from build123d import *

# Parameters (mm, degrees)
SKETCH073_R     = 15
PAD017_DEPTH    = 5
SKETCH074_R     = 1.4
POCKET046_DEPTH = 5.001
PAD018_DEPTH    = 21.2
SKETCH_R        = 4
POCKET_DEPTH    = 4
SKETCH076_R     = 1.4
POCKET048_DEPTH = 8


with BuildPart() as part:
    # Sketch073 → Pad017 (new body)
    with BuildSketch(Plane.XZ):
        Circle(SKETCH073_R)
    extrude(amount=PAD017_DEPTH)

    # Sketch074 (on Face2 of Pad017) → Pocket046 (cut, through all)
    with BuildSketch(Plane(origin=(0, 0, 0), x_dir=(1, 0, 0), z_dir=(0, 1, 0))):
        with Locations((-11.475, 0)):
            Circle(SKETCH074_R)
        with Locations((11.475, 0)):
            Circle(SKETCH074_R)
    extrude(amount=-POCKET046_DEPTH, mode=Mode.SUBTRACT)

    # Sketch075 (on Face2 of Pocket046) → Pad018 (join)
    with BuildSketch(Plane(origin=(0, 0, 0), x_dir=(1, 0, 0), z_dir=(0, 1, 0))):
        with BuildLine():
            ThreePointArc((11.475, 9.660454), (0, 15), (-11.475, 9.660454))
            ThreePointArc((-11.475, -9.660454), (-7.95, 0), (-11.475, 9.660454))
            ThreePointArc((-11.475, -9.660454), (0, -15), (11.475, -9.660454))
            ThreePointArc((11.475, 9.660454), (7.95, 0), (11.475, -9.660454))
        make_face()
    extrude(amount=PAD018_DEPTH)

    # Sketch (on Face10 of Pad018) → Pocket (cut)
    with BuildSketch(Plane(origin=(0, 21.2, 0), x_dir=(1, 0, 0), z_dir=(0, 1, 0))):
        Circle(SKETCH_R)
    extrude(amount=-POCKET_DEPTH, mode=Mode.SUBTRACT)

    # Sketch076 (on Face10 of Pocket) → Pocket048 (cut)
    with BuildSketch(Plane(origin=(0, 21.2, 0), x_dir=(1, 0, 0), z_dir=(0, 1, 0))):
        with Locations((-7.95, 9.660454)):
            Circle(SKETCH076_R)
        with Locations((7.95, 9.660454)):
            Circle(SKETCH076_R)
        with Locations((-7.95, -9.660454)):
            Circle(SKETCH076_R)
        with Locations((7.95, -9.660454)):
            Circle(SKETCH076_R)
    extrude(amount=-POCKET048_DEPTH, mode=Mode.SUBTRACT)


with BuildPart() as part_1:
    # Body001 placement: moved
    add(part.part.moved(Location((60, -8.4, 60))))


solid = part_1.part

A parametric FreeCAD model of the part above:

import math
import FreeCAD as App
import Part
import Sketcher

V = App.Vector

doc = App.newDocument("Part")
body = doc.addObject("PartDesign::Body", "Body")

sketch1 = doc.addObject("Sketcher::SketchObject", "Sketch")
body.addObject(sketch1)
sketch1.AttachmentSupport = (doc.XZ_Plane, [""])
sketch1.MapMode = "FlatFace"
sketch1.addGeometry(Part.Circle(V(0, 0, 0), V(0, 0, 1), 15), False)
sketch1.addConstraint(Sketcher.Constraint("Coincident", 0, 3, -1, 1))
sketch1.addConstraint(Sketcher.Constraint("Diameter", 0, 30.0))
pad1 = doc.addObject("PartDesign::Pad", "Pad")
body.addObject(pad1)
pad1.Profile = sketch1
pad1.Length = 5

sketch2 = doc.addObject("Sketcher::SketchObject", "Sketch001")
body.addObject(sketch2)
sketch2.AttachmentSupport = (doc.XZ_Plane, [""])
sketch2.MapMode = "FlatFace"
sketch2.addGeometry(Part.Circle(V(-11.475, 0, 0), V(0, 0, 1), 1.4), False)
sketch2.addGeometry(Part.Circle(V(11.475, 0, 0), V(0, 0, 1), 1.4), False)
sketch2.addConstraint(Sketcher.Constraint("Equal", 0, 1))
sketch2.addConstraint(Sketcher.Constraint("Symmetric", 0, 3, 1, 3, -1, 1))
sketch2.addConstraint(Sketcher.Constraint("PointOnObject", 0, 3, -1))
sketch2.addConstraint(Sketcher.Constraint("Diameter", 0, 2.8))
sketch2.addConstraint(Sketcher.Constraint("DistanceX", 0, 3, 1, 3, 22.95))
pocket1 = doc.addObject("PartDesign::Pocket", "Pocket")
body.addObject(pocket1)
pocket1.Profile = sketch2
pocket1.Type = "ThroughAll"
pocket1.Reversed = True

sketch3 = doc.addObject("Sketcher::SketchObject", "Sketch002")
body.addObject(sketch3)
sketch3.AttachmentSupport = (doc.XZ_Plane, [""])
sketch3.MapMode = "FlatFace"
sketch3.addGeometry(Part.ArcOfCircle(Part.Circle(V(0, 0, 0), V(0, 0, 1), 15), math.radians(-139.906994), math.radians(-40.093006)), False)
sketch3.addGeometry(Part.ArcOfCircle(Part.Circle(V(-22.95, 0, 0), V(0, 0, 1), 15), math.radians(-40.093009), math.radians(40.093009)), False)
sketch3.addGeometry(Part.ArcOfCircle(Part.Circle(V(0, 0, 0), V(0, 0, 1), 15), math.radians(40.093006), math.radians(139.906994)), False)
sketch3.addGeometry(Part.ArcOfCircle(Part.Circle(V(22.95, 0, 0), V(0, 0, 1), 15), math.radians(139.906991), math.radians(220.093009)), False)
sketch3.addConstraint(Sketcher.Constraint("Coincident", 0, 1, 1, 1))
sketch3.addConstraint(Sketcher.Constraint("Coincident", 1, 2, 2, 2))
sketch3.addConstraint(Sketcher.Constraint("Coincident", 2, 1, 3, 1))
sketch3.addConstraint(Sketcher.Constraint("Coincident", 3, 2, 0, 2))
sketch3.addConstraint(Sketcher.Constraint("Coincident", 0, 3, -1, 1))
sketch3.addConstraint(Sketcher.Constraint("Coincident", 2, 3, -1, 1))
sketch3.addConstraint(Sketcher.Constraint("Equal", 0, 1))
sketch3.addConstraint(Sketcher.Constraint("Equal", 1, 2))
sketch3.addConstraint(Sketcher.Constraint("Equal", 2, 3))
sketch3.addConstraint(Sketcher.Constraint("Symmetric", 1, 3, 3, 3, -1, 1))
sketch3.addConstraint(Sketcher.Constraint("PointOnObject", 1, 3, -1))
sketch3.addConstraint(Sketcher.Constraint("Radius", 0, 15.0))
sketch3.addConstraint(Sketcher.Constraint("DistanceX", 1, 3, 3, 3, 45.899999))
pad2 = doc.addObject("PartDesign::Pad", "Pad001")
body.addObject(pad2)
pad2.Profile = sketch3
pad2.Length = 21.2
pad2.Reversed = True

sketch4 = doc.addObject("Sketcher::SketchObject", "Sketch003")
body.addObject(sketch4)
sketch4.AttachmentSupport = (doc.XZ_Plane, [""])
sketch4.MapMode = "FlatFace"
sketch4.AttachmentOffset = App.Placement(V(0, 0, -21.2), App.Rotation())
sketch4.addGeometry(Part.Circle(V(0, 0, 0), V(0, 0, 1), 4), False)
sketch4.addConstraint(Sketcher.Constraint("Coincident", 0, 3, -1, 1))
sketch4.addConstraint(Sketcher.Constraint("Diameter", 0, 8.0))
pocket2 = doc.addObject("PartDesign::Pocket", "Pocket001")
body.addObject(pocket2)
pocket2.Profile = sketch4
pocket2.Length = 4
pocket2.Reversed = True

sketch5 = doc.addObject("Sketcher::SketchObject", "Sketch004")
body.addObject(sketch5)
sketch5.AttachmentSupport = (doc.XZ_Plane, [""])
sketch5.MapMode = "FlatFace"
sketch5.AttachmentOffset = App.Placement(V(0, 0, -21.2), App.Rotation())
sketch5.addGeometry(Part.Circle(V(-7.95, -9.660454, 0), V(0, 0, 1), 1.4), False)
sketch5.addGeometry(Part.Circle(V(7.95, -9.660454, 0), V(0, 0, 1), 1.4), False)
sketch5.addGeometry(Part.Circle(V(-7.95, 9.660454, 0), V(0, 0, 1), 1.4), False)
sketch5.addGeometry(Part.Circle(V(7.95, 9.660454, 0), V(0, 0, 1), 1.4), False)
sketch5.addConstraint(Sketcher.Constraint("Equal", 0, 1))
sketch5.addConstraint(Sketcher.Constraint("Equal", 1, 2))
sketch5.addConstraint(Sketcher.Constraint("Equal", 2, 3))
sketch5.addConstraint(Sketcher.Constraint("Symmetric", 1, 3, 2, 3, -1, 1))
sketch5.addConstraint(Sketcher.Constraint("Symmetric", 0, 3, 3, 3, -1, 1))
sketch5.addConstraint(Sketcher.Constraint("Symmetric", 0, 3, 1, 3, -2))
sketch5.addConstraint(Sketcher.Constraint("Diameter", 0, 2.8))
sketch5.addConstraint(Sketcher.Constraint("DistanceX", 0, 3, 1, 3, 15.9))
sketch5.addConstraint(Sketcher.Constraint("DistanceY", 0, 3, -1, 1, 9.660454))
pocket3 = doc.addObject("PartDesign::Pocket", "Pocket002")
body.addObject(pocket3)
pocket3.Profile = sketch5
pocket3.Length = 8
pocket3.Reversed = True
body2 = doc.addObject("PartDesign::Body", "Body001")
doc.recompute()

body.Placement = App.Placement(V(60, -8.4, 60), App.Rotation(V(0, 0, 1), 0))
boolean = doc.addObject("PartDesign::Boolean", "Boolean")
body2.addObject(boolean)
boolean.Type = "Fuse"
boolean.addObjects([body])

doc.recompute()
